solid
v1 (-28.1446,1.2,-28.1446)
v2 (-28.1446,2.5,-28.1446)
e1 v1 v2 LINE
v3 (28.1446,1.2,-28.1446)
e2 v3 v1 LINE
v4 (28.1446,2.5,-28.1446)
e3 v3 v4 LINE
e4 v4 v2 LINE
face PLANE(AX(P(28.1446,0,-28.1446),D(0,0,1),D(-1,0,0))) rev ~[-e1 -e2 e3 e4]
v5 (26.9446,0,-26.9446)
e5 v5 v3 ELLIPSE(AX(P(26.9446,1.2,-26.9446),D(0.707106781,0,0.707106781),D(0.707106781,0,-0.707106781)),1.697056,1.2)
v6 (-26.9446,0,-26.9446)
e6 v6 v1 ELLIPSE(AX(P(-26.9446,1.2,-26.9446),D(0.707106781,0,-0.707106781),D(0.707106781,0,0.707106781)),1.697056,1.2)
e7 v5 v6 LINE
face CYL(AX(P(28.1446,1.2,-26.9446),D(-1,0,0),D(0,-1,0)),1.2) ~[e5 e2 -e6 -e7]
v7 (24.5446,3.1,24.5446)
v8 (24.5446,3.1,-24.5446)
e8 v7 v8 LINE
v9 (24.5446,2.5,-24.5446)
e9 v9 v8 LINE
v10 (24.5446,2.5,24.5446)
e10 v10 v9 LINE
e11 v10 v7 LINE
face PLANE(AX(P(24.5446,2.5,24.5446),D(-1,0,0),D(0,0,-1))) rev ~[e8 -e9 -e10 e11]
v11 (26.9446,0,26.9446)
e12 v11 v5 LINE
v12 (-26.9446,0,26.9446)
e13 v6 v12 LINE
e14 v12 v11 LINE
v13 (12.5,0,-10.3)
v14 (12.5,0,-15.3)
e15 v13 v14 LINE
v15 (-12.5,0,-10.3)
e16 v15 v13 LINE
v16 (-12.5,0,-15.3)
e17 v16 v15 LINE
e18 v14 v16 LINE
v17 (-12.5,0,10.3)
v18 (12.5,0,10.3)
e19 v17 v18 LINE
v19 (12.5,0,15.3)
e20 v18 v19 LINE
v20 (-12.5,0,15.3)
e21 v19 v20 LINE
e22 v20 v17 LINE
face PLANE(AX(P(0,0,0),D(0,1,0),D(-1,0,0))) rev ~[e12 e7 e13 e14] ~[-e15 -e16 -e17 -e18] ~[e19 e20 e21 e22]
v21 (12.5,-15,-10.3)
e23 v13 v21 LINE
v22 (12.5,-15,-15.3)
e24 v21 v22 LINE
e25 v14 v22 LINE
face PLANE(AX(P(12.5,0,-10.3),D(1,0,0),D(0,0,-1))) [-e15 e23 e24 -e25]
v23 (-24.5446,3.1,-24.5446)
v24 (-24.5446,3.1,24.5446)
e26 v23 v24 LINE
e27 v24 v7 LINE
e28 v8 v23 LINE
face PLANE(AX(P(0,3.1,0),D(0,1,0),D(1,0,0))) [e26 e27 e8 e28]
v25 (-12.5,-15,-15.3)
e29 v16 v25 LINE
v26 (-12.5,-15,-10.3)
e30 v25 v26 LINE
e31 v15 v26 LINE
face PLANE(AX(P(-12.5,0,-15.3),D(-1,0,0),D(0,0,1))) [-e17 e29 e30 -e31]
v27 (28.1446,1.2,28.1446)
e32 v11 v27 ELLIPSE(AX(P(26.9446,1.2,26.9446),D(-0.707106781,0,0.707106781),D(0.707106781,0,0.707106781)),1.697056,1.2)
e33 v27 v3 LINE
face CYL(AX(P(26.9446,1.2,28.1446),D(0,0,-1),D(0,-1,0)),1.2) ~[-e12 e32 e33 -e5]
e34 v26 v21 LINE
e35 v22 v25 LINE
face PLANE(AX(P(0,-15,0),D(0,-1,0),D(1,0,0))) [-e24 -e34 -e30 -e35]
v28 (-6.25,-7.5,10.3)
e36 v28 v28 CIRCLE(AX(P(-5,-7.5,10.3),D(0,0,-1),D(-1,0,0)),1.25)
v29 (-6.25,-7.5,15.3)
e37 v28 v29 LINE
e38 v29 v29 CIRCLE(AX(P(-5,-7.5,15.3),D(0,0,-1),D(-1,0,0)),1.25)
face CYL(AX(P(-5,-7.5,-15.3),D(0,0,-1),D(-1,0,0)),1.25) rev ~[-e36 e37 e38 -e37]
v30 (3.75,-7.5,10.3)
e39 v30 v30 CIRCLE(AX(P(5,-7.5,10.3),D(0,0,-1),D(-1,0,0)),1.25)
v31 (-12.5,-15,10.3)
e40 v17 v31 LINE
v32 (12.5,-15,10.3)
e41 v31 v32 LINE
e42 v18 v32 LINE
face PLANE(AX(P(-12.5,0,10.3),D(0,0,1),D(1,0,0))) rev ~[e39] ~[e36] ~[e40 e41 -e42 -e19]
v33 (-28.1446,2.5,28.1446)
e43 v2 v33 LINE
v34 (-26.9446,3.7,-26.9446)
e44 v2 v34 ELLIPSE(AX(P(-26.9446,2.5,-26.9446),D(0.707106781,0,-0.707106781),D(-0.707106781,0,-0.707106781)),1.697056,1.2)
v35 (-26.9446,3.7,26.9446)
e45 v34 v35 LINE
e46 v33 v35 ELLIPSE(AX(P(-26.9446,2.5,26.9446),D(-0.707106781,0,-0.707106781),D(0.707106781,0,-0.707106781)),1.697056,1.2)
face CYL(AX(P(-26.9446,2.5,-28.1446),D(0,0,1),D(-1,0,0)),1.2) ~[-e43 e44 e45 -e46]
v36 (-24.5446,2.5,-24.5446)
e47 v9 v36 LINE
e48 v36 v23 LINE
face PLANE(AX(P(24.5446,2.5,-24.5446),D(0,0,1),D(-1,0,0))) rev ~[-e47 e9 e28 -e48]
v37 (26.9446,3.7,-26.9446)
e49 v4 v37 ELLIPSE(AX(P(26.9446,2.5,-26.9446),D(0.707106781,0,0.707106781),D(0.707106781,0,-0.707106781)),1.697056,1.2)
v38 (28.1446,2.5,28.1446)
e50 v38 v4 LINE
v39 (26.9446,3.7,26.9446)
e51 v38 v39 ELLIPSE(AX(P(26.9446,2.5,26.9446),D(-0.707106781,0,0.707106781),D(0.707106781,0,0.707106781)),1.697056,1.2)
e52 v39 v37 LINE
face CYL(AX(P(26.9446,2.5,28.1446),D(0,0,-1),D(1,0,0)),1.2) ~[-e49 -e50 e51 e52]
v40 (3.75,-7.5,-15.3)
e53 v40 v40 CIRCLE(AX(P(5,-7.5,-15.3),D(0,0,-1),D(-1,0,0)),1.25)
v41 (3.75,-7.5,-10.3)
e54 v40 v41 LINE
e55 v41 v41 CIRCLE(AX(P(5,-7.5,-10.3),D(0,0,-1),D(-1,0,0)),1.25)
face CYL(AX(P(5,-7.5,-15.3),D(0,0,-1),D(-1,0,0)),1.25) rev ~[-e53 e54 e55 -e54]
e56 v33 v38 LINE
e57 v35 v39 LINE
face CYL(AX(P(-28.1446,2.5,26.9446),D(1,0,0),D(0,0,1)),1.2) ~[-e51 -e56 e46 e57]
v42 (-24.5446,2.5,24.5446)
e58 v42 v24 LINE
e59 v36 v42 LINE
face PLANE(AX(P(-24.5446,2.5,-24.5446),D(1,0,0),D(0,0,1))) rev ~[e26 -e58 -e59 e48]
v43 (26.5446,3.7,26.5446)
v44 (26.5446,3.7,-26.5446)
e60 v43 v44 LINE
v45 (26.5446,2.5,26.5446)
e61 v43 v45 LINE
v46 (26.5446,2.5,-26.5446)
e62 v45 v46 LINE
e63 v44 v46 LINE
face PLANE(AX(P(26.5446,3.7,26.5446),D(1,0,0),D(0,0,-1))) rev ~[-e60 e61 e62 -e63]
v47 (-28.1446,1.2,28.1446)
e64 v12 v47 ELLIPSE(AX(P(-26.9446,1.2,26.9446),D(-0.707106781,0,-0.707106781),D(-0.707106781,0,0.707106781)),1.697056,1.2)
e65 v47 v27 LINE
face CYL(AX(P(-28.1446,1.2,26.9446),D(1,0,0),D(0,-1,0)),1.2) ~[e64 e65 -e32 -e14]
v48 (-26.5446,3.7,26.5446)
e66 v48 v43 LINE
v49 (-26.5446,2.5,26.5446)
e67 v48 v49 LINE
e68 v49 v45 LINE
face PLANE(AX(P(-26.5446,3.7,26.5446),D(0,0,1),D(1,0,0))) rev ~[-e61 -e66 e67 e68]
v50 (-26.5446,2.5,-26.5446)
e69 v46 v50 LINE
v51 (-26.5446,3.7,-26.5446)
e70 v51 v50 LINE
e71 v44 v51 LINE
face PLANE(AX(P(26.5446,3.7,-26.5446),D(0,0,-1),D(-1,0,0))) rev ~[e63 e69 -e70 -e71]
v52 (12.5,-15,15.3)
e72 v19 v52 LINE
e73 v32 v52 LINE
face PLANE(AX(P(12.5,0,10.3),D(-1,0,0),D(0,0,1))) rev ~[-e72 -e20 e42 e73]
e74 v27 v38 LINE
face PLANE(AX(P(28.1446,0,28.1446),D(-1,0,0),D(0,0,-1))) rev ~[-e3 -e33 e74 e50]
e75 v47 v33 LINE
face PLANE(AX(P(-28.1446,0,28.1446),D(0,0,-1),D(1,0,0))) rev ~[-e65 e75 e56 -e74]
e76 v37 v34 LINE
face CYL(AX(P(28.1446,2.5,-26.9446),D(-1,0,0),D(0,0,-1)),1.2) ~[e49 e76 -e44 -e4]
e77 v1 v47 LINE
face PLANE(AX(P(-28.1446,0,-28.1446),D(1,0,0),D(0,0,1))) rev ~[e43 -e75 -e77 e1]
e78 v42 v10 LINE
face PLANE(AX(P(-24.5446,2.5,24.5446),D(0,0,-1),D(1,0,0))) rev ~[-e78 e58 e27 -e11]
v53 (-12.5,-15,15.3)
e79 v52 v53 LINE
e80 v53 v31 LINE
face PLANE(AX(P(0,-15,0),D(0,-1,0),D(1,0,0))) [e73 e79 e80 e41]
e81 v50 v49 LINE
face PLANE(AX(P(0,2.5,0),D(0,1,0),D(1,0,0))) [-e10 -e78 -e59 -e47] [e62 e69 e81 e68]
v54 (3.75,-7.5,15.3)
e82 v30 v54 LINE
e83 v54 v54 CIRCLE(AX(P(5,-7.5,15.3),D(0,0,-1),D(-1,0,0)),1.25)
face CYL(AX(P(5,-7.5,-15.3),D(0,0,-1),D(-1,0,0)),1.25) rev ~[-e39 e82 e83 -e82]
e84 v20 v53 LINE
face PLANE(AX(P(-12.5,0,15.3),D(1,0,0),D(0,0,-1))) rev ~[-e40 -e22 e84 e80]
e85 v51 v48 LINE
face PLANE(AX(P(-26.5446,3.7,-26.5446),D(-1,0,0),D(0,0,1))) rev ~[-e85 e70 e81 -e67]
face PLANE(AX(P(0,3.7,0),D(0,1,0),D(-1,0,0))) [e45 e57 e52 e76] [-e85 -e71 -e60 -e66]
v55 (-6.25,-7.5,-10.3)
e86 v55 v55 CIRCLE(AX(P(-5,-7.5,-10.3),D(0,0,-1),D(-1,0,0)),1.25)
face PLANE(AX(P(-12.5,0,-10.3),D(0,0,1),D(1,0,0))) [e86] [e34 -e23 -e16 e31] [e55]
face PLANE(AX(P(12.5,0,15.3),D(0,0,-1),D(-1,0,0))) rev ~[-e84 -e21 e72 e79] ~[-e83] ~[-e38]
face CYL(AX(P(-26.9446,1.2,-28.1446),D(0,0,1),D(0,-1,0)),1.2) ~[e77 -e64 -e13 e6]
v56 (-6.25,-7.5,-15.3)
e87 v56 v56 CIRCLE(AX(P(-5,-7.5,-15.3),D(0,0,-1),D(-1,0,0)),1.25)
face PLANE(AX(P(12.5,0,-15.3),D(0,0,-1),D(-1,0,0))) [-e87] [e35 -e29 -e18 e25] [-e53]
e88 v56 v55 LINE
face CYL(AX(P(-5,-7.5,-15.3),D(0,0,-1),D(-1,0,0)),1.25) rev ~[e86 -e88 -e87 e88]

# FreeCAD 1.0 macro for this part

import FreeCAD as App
import Part
import Sketcher

V = App.Vector


def edges_at(feature, points):
    """Names of the edges that pass closest to the given points."""
    edges = feature.Shape.Edges
    near = lambda p: min(range(len(edges)), key=lambda i: edges[i].distToShape(Part.Vertex(*p))[0])
    return sorted({f"Edge{near(p) + 1}" for p in points})

doc = App.newDocument("Part")
body = doc.addObject("PartDesign::Body", "Body")

# Sketch on XZ plane
sketch1 = body.newObject("Sketcher::SketchObject", "Sketch")
sketch1.AttachmentSupport = (doc.getObject("XZ_Plane"), [""])
sketch1.MapMode = "FlatFace"
sketch1.addGeometry([
    Part.LineSegment(V(28, 28, 0), V(28, -28, 0)),
    Part.LineSegment(V(28, -28, 0), V(-28, -28, 0)),
    Part.LineSegment(V(-28, -28, 0), V(-28, 28, 0)),
    Part.LineSegment(V(-28, 28, 0), V(28, 28, 0)),
], False)
sketch1.addConstraint([
    Sketcher.Constraint("Coincident", 0, 2, 1, 1),
    Sketcher.Constraint("Coincident", 1, 2, 2, 1),
    Sketcher.Constraint("Coincident", 2, 2, 3, 1),
    Sketcher.Constraint("Coincident", 3, 2, 0, 1),
    Sketcher.Constraint("Vertical", 0),
    Sketcher.Constraint("Horizontal", 1),
    Sketcher.Constraint("Vertical", 2),
    Sketcher.Constraint("Horizontal", 3),
    Sketcher.Constraint("Symmetric", 0, 2, 2, 2, -1, 1),
    Sketcher.Constraint("Equal", 3, 0),
    Sketcher.Constraint("DistanceX", 1, 2, 1, 1, 56.2892),
])
pad1 = body.newObject("PartDesign::Pad", "Pad")
pad1.Profile = sketch1
pad1.Length = 3.7
pad1.Reversed = True

# Sketch on XZ plane
sketch2 = body.newObject("Sketcher::SketchObject", "Sketch001")
sketch2.AttachmentSupport = (doc.getObject("XZ_Plane"), [""])
sketch2.MapMode = "FlatFace"
sketch2.AttachmentOffset = App.Placement(V(0, 0, -3.7), App.Rotation())
sketch2.addGeometry([
    Part.LineSegment(V(27, 27, 0), V(27, -27, 0)),
    Part.LineSegment(V(27, -27, 0), V(-27, -27, 0)),
    Part.LineSegment(V(-27, -27, 0), V(-27, 27, 0)),
    Part.LineSegment(V(-27, 27, 0), V(27, 27, 0)),
], False)
sketch2.addConstraint([
    Sketcher.Constraint("Coincident", 0, 2, 1, 1),
    Sketcher.Constraint("Coincident", 1, 2, 2, 1),
    Sketcher.Constraint("Coincident", 2, 2, 3, 1),
    Sketcher.Constraint("Coincident", 3, 2, 0, 1),
    Sketcher.Constraint("Vertical", 0),
    Sketcher.Constraint("Horizontal", 1),
    Sketcher.Constraint("Vertical", 2),
    Sketcher.Constraint("Horizontal", 3),
    Sketcher.Constraint("Symmetric", 0, 2, 2, 2, -1, 1),
    Sketcher.Constraint("Equal", 3, 0),
    Sketcher.Constraint("DistanceX", 1, 2, 1, 1, 53.0892),
])
pocket1 = body.newObject("PartDesign::Pocket", "Pocket")
pocket1.Profile = sketch2
pocket1.Length = 1.2
pocket1.Reversed = True

# Sketch on XZ plane
sketch3 = body.newObject("Sketcher::SketchObject", "Sketch002")
sketch3.AttachmentSupport = (doc.getObject("XZ_Plane"), [""])
sketch3.MapMode = "FlatFace"
sketch3.AttachmentOffset = App.Placement(V(0, 0, -2.5), App.Rotation())
sketch3.addGeometry([
    Part.LineSegment(V(25, 25, 0), V(25, -25, 0)),
    Part.LineSegment(V(25, -25, 0), V(-25, -25, 0)),
    Part.LineSegment(V(-25, -25, 0), V(-25, 25, 0)),
    Part.LineSegment(V(-25, 25, 0), V(25, 25, 0)),
], False)
sketch3.addConstraint([
    Sketcher.Constraint("Coincident", 0, 2, 1, 1),
    Sketcher.Constraint("Coincident", 1, 2, 2, 1),
    Sketcher.Constraint("Coincident", 2, 2, 3, 1),
    Sketcher.Constraint("Coincident", 3, 2, 0, 1),
    Sketcher.Constraint("Vertical", 0),
    Sketcher.Constraint("Horizontal", 1),
    Sketcher.Constraint("Vertical", 2),
    Sketcher.Constraint("Horizontal", 3),
    Sketcher.Constraint("Symmetric", 0, 2, 2, 2, -1, 1),
    Sketcher.Constraint("Equal", 3, 0),
    Sketcher.Constraint("DistanceX", 1, 2, 1, 1, 49.0892),
])
pad2 = body.newObject("PartDesign::Pad", "Pad001")
pad2.Profile = sketch3
pad2.Length = 0.6
pad2.Reversed = True
doc.recompute()

fillet = body.newObject("PartDesign::Fillet", "Fillet")
fillet.Base = (pad2, edges_at(pad2, [
    (0, 3.7, 28.145),
    (28.145, 3.7, 0),
    (0, 3.7, -28.145),
    (-28.145, 3.7, 0),
    (-28.145, 0, 0),
    (0, 0, 28.145),
    (28.145, 0, 0),
    (0, 0, -28.145),
]))
fillet.Radius = 1.2

# Sketch on XZ plane
sketch4 = body.newObject("Sketcher::SketchObject", "Sketch003")
sketch4.AttachmentSupport = (doc.getObject("XZ_Plane"), [""])
sketch4.MapMode = "FlatFace"
sketch4.addGeometry([
    Part.LineSegment(V(-12, 15, 0), V(-12, 10, 0)),  # 0
    Part.LineSegment(V(-12, 10, 0), V(12, 10, 0)),  # 1
    Part.LineSegment(V(12, 10, 0), V(12, 15, 0)),  # 2
    Part.LineSegment(V(12, 15, 0), V(-12, 15, 0)),  # 3
    Part.LineSegment(V(12, -10, 0), V(-12, -10, 0)),  # 4
    Part.LineSegment(V(-12, -10, 0), V(-12, -15, 0)),  # 5
    Part.LineSegment(V(-12, -15, 0), V(12, -15, 0)),  # 6
    Part.LineSegment(V(12, -15, 0), V(12, -10, 0)),  # 7
], False)
sketch4.addConstraint([
    Sketcher.Constraint("Coincident", 0, 2, 1, 1),
    Sketcher.Constraint("Coincident", 1, 2, 2, 1),
    Sketcher.Constraint("Coincident", 2, 2, 3, 1),
    Sketcher.Constraint("Coincident", 3, 2, 0, 1),
    Sketcher.Constraint("Coincident", 4, 2, 5, 1),
    Sketcher.Constraint("Coincident", 5, 2, 6, 1),
    Sketcher.Constraint("Coincident", 6, 2, 7, 1),
    Sketcher.Constraint("Coincident", 7, 2, 4, 1),
    Sketcher.Constraint("Vertical", 0),
    Sketcher.Constraint("Horizontal", 1),
    Sketcher.Constraint("Vertical", 2),
    Sketcher.Constraint("Horizontal", 3),
    Sketcher.Constraint("Horizontal", 4),
    Sketcher.Constraint("Vertical", 5),
    Sketcher.Constraint("Horizontal", 6),
    Sketcher.Constraint("Vertical", 7),
    Sketcher.Constraint("Symmetric", 1, 2, 4, 2, -1, 1),
    Sketcher.Constraint("Symmetric", 3, 2, 6, 2, -1, 1),
    Sketcher.Constraint("Vertical", 3, 2, 4, 2),
    Sketcher.Constraint("DistanceX", 1, 1, 1, 2, 25.0),
    Sketcher.Constraint("DistanceY", 0, 2, 0, 1, 5.0),
    Sketcher.Constraint("DistanceY", -1, 1, 0, 2, 10.3),
])
pad3 = body.newObject("PartDesign::Pad", "Pad002")
pad3.Profile = sketch4
pad3.Length = 15

# Sketch on XY plane
sketch5 = body.newObject("Sketcher::SketchObject", "Sketch004")
sketch5.AttachmentSupport = (doc.getObject("XY_Plane"), [""])
sketch5.MapMode = "FlatFace"
sketch5.AttachmentOffset = App.Placement(V(0, 0, -15.3), App.Rotation())
sketch5.addGeometry([
    Part.Circle(V(-5, -7.5, 0), V(0, 0, 1), 1.2),
    Part.Circle(V(5, -7.5, 0), V(0, 0, 1), 1.2),
], False)
sketch5.addConstraint([
    Sketcher.Constraint("Equal", 0, 1),
    Sketcher.Constraint("Symmetric", 0, 3, 1, 3, -2),
    Sketcher.Constraint("Diameter", 0, 2.5),
    Sketcher.Constraint("DistanceX", 0, 3, -1, 1, 5.0),
    Sketcher.Constraint("DistanceY", 0, 3, -1, 1, 7.5),
])
pocket2 = body.newObject("PartDesign::Pocket", "Pocket001")
pocket2.Profile = sketch5
pocket2.Length = 30.6
pocket2.Reversed = True

doc.recompute()
